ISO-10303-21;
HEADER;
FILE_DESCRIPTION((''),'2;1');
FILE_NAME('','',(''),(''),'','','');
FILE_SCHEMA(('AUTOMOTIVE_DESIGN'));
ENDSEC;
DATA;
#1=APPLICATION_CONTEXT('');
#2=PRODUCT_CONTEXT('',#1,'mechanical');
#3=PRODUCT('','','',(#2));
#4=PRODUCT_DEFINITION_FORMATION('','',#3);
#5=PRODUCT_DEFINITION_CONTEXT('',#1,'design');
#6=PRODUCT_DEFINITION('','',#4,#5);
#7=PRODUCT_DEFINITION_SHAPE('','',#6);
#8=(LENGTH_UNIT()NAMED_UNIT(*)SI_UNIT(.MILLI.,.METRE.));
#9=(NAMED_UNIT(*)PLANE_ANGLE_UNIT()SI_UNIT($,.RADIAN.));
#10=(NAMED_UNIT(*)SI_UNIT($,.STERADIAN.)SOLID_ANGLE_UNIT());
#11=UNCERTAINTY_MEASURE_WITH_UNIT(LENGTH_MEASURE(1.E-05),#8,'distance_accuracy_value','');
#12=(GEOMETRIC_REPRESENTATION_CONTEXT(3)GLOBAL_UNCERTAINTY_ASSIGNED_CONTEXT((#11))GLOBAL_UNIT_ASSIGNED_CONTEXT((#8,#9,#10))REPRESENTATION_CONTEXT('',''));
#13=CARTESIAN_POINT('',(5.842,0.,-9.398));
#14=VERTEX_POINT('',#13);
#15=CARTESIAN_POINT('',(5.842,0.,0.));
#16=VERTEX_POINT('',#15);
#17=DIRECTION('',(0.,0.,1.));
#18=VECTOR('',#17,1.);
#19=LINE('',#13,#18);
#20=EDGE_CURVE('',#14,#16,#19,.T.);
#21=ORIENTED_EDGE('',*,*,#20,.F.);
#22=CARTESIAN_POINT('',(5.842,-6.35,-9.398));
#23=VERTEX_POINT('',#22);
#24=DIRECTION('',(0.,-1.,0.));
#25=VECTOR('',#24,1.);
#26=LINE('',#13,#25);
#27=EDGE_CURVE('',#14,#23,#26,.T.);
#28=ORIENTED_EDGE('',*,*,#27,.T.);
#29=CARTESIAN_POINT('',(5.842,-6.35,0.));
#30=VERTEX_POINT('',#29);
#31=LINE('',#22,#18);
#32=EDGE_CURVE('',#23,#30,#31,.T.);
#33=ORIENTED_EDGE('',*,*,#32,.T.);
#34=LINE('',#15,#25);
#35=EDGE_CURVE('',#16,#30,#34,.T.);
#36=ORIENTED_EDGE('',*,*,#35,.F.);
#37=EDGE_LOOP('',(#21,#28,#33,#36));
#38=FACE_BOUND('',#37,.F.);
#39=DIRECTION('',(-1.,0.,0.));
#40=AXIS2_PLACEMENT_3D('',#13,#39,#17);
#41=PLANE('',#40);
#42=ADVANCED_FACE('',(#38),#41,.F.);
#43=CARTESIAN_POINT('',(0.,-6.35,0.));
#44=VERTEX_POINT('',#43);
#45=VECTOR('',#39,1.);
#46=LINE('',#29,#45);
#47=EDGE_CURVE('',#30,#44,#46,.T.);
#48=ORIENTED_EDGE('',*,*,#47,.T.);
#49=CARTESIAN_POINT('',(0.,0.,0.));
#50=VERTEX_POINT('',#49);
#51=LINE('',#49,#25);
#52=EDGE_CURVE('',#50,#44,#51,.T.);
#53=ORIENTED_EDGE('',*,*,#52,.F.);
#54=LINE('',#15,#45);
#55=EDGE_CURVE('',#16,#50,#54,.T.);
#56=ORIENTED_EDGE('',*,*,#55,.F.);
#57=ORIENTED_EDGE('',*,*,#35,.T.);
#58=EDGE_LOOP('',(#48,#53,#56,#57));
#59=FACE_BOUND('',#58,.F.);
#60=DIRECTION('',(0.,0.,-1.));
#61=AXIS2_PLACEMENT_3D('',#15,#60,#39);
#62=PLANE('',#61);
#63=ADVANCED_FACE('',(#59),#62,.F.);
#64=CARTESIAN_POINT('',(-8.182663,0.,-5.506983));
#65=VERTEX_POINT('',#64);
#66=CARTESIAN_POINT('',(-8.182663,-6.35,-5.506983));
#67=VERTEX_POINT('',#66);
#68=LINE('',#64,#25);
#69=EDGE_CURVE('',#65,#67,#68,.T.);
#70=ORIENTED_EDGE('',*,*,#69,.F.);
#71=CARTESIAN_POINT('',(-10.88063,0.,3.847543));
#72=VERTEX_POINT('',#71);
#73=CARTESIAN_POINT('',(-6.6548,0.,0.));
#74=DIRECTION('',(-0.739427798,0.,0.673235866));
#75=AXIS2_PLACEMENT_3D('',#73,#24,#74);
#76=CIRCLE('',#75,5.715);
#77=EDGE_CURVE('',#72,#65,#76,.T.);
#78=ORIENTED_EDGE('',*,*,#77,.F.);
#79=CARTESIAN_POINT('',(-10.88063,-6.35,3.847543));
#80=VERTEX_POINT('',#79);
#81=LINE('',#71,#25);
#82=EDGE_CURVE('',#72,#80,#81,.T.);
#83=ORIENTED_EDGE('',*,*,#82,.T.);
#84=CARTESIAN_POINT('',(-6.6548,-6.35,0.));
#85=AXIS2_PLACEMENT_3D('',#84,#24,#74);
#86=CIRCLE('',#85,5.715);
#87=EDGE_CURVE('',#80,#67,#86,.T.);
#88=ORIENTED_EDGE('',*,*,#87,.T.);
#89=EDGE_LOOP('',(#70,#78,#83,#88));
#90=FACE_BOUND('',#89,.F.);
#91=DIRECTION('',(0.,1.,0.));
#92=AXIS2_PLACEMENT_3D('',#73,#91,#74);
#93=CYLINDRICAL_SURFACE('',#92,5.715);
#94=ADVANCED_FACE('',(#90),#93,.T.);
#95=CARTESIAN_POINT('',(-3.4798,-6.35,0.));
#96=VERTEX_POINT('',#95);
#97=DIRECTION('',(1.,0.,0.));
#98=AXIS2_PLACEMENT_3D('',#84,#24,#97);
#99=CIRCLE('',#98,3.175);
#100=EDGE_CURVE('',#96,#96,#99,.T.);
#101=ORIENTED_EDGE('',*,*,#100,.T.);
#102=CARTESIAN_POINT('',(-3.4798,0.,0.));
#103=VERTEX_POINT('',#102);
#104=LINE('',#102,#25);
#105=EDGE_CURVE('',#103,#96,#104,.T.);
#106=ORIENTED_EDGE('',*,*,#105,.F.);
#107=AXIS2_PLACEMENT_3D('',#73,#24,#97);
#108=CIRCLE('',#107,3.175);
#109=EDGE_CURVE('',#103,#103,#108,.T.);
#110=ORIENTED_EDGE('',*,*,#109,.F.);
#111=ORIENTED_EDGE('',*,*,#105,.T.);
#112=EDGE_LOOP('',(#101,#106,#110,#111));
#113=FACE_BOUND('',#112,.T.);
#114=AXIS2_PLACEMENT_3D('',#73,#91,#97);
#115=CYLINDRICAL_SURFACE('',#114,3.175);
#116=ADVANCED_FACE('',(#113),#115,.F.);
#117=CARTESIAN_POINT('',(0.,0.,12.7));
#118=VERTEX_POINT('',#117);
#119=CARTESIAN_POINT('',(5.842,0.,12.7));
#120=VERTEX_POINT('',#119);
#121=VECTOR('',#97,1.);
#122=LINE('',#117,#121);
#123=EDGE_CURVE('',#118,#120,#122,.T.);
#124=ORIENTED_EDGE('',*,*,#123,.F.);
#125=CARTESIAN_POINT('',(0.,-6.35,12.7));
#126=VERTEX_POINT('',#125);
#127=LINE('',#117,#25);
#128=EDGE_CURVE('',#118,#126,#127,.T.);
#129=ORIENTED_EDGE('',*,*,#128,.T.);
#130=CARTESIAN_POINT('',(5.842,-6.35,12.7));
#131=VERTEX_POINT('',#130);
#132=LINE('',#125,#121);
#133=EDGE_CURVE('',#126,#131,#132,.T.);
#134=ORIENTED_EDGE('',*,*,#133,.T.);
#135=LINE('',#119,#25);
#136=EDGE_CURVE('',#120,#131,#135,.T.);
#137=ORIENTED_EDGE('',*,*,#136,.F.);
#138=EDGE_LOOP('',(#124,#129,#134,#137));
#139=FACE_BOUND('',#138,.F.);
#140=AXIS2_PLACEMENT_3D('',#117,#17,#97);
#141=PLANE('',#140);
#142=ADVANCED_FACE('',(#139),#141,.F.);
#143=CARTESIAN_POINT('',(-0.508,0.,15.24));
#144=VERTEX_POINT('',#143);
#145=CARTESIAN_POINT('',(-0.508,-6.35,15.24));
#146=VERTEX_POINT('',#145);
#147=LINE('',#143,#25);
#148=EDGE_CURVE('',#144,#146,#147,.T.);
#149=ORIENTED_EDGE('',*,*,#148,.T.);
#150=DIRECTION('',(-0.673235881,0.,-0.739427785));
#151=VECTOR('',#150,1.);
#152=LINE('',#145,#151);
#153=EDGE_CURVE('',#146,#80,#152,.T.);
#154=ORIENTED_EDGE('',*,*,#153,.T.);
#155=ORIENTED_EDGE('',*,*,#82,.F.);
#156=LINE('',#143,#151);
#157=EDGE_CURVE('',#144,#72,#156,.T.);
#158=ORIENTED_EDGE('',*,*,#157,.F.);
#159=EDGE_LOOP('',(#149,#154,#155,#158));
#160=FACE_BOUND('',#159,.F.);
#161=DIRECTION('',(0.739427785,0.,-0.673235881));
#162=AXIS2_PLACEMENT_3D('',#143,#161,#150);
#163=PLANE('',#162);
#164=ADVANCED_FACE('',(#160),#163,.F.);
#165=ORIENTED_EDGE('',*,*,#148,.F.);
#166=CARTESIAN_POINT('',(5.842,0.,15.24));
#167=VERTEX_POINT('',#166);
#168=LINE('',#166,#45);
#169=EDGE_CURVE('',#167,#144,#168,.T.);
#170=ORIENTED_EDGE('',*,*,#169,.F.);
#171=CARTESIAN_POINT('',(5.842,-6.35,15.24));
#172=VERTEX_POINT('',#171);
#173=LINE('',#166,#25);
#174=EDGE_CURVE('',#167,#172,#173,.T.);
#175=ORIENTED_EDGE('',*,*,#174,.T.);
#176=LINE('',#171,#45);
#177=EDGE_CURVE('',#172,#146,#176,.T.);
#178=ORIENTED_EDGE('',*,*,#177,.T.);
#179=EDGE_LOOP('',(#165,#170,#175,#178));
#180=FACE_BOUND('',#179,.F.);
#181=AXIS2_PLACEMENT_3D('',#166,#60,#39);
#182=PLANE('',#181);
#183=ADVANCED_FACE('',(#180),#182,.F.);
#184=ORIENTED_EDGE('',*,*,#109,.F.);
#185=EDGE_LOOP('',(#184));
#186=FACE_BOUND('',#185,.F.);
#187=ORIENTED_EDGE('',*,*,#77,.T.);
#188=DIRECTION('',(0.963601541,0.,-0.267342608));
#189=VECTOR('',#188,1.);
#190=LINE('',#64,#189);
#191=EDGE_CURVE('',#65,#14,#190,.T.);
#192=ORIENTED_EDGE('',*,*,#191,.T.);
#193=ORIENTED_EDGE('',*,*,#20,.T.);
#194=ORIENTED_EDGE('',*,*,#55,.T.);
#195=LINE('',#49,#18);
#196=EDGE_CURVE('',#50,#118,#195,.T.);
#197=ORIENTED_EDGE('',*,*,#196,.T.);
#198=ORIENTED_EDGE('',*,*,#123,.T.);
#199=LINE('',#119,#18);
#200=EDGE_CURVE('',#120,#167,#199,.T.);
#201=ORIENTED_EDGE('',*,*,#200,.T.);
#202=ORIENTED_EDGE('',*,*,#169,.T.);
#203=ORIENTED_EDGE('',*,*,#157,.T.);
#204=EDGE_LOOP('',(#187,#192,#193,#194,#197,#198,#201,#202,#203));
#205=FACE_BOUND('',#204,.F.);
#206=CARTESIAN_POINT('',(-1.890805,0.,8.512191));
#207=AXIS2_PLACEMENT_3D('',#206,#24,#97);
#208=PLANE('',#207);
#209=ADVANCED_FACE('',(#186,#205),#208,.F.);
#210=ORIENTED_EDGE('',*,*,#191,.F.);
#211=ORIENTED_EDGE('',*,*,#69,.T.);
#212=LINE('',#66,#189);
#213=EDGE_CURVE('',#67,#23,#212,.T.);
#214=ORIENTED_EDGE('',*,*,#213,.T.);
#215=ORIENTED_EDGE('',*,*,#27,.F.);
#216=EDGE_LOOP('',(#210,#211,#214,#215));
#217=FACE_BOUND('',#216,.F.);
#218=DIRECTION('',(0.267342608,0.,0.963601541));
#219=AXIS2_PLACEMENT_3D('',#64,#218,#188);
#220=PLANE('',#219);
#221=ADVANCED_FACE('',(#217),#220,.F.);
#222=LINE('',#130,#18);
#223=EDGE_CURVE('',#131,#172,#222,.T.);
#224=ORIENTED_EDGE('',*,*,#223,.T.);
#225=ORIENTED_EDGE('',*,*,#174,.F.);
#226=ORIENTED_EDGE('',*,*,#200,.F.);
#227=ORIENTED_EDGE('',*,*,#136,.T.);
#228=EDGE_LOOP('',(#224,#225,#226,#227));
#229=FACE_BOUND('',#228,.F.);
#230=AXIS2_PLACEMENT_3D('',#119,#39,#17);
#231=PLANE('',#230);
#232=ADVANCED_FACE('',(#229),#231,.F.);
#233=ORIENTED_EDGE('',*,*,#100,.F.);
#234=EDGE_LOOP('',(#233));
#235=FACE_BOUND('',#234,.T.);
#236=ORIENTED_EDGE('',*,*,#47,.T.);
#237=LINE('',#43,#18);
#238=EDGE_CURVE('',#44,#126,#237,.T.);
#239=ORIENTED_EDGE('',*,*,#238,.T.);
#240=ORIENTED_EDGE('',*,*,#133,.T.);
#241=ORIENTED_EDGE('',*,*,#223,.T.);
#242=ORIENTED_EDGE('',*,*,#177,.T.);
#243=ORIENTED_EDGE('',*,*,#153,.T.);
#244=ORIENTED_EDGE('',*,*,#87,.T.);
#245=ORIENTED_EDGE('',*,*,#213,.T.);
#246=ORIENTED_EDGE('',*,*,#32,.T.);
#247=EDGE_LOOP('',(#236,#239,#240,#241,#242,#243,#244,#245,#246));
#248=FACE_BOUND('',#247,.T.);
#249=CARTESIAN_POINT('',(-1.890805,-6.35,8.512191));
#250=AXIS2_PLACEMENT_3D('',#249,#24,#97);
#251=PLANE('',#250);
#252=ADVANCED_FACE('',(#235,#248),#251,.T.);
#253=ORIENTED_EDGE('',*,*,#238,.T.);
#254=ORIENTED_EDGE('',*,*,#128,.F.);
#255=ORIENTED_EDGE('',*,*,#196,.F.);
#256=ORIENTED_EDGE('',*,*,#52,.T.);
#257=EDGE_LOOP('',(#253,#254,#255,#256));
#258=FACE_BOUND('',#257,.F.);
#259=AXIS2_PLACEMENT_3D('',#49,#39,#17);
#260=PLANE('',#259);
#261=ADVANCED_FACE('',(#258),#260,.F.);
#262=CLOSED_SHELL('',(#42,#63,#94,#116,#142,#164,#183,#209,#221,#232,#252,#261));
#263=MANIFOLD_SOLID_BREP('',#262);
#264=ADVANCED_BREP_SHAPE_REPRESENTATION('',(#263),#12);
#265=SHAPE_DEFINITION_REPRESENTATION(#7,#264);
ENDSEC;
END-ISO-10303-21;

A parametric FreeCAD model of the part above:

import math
import FreeCAD as App
import Part
import Sketcher

V = App.Vector
Q = App.Units.Quantity

doc = App.newDocument("Part")
body = doc.addObject("PartDesign::Body", "Body")

# Sketch on XZ plane
sketch1 = body.newObject("Sketcher::SketchObject", "Sketch")
sketch1.AttachmentSupport = (doc.getObject("XZ_Plane"), [""])
sketch1.MapMode = "FlatFace"
sketch1.addGeometry(Part.LineSegment(V(0, 0, 0), V(0, 12.7, 0)), False)
sketch1.addGeometry(Part.LineSegment(V(0, 12.7, 0), V(5.8, 12.7, 0)), False)
sketch1.addGeometry(Part.LineSegment(V(5.8, 12.7, 0), V(5.8, 15.2, 0)), False)
sketch1.addGeometry(Part.LineSegment(V(5.8, 15.2, 0), V(-0.5, 15.2, 0)), False)
sketch1.addGeometry(Part.LineSegment(V(-0.5, 15.2, 0), V(-10.9, 3.8, 0)), False)
sketch1.addGeometry(Part.ArcOfCircle(Part.Circle(V(-6.7, 0, 0), V(0, 0, 1), 5.7), math.radians(138), math.radians(254)), False)
sketch1.addGeometry(Part.LineSegment(V(-8.2, -5.5, 0), V(5.8, -9.4, 0)), False)
sketch1.addGeometry(Part.LineSegment(V(5.8, -9.4, 0), V(5.8, 0, 0)), False)
sketch1.addGeometry(Part.LineSegment(V(5.8, 0, 0), V(0, 0, 0)), False)
sketch1.addGeometry(Part.Circle(V(-6.7, 0, 0), V(0, 0, 1), 3.2), False)
sketch1.addConstraint(Sketcher.Constraint("Coincident", 0, 2, 1, 1))
sketch1.addConstraint(Sketcher.Constraint("Coincident", 1, 2, 2, 1))
sketch1.addConstraint(Sketcher.Constraint("Coincident", 2, 2, 3, 1))
sketch1.addConstraint(Sketcher.Constraint("Coincident", 3, 2, 4, 1))
sketch1.addConstraint(Sketcher.Constraint("Tangent", 4, 2, 5, 1))
sketch1.addConstraint(Sketcher.Constraint("Tangent", 5, 2, 6, 1))
sketch1.addConstraint(Sketcher.Constraint("Coincident", 6, 2, 7, 1))
sketch1.addConstraint(Sketcher.Constraint("Coincident", 7, 2, 8, 1))
sketch1.addConstraint(Sketcher.Constraint("Coincident", 8, 2, 0, 1))
sketch1.addConstraint(Sketcher.Constraint("Vertical", 0))
sketch1.addConstraint(Sketcher.Constraint("Horizontal", 1))
sketch1.addConstraint(Sketcher.Constraint("Vertical", 2))
sketch1.addConstraint(Sketcher.Constraint("Horizontal", 3))
sketch1.addConstraint(Sketcher.Constraint("Vertical", 7))
sketch1.addConstraint(Sketcher.Constraint("Horizontal", 8))
sketch1.addConstraint(Sketcher.Constraint("Coincident", 8, 2, -1, 1))
sketch1.addConstraint(Sketcher.Constraint("Coincident", 9, 3, 5, 3))
sketch1.addConstraint(Sketcher.Constraint("PointOnObject", 5, 3, -1))
sketch1.addConstraint(Sketcher.Constraint("Vertical", 2, 2, 6, 2))
sketch1.addConstraint(Sketcher.Constraint("Diameter", 9, Q("0.25 in")))
sketch1.addConstraint(Sketcher.Constraint("DistanceY", 0, 1, 0, 2, Q("0.5 in")))
sketch1.addConstraint(Sketcher.Constraint("DistanceY", 2, 1, 2, 2, Q("0.1 in")))
sketch1.addConstraint(Sketcher.Constraint("Radius", 5, Q("0.225 in")))
sketch1.addConstraint(Sketcher.Constraint("DistanceX", 1, 1, 1, 2, Q("0.23 in")))
sketch1.addConstraint(Sketcher.Constraint("DistanceX", 3, 2, 3, 1, Q("0.25 in")))
sketch1.addConstraint(Sketcher.Constraint("DistanceY", 7, 1, 7, 2, Q("0.37 in")))
sketch1.addConstraint(Sketcher.Constraint("DistanceX", 5, 3, -1, 1, Q("0.262 in")))
pad1 = body.newObject("PartDesign::Pad", "Pad")
pad1.Profile = sketch1
pad1.Length = Q("0.25 in")

doc.recompute()
